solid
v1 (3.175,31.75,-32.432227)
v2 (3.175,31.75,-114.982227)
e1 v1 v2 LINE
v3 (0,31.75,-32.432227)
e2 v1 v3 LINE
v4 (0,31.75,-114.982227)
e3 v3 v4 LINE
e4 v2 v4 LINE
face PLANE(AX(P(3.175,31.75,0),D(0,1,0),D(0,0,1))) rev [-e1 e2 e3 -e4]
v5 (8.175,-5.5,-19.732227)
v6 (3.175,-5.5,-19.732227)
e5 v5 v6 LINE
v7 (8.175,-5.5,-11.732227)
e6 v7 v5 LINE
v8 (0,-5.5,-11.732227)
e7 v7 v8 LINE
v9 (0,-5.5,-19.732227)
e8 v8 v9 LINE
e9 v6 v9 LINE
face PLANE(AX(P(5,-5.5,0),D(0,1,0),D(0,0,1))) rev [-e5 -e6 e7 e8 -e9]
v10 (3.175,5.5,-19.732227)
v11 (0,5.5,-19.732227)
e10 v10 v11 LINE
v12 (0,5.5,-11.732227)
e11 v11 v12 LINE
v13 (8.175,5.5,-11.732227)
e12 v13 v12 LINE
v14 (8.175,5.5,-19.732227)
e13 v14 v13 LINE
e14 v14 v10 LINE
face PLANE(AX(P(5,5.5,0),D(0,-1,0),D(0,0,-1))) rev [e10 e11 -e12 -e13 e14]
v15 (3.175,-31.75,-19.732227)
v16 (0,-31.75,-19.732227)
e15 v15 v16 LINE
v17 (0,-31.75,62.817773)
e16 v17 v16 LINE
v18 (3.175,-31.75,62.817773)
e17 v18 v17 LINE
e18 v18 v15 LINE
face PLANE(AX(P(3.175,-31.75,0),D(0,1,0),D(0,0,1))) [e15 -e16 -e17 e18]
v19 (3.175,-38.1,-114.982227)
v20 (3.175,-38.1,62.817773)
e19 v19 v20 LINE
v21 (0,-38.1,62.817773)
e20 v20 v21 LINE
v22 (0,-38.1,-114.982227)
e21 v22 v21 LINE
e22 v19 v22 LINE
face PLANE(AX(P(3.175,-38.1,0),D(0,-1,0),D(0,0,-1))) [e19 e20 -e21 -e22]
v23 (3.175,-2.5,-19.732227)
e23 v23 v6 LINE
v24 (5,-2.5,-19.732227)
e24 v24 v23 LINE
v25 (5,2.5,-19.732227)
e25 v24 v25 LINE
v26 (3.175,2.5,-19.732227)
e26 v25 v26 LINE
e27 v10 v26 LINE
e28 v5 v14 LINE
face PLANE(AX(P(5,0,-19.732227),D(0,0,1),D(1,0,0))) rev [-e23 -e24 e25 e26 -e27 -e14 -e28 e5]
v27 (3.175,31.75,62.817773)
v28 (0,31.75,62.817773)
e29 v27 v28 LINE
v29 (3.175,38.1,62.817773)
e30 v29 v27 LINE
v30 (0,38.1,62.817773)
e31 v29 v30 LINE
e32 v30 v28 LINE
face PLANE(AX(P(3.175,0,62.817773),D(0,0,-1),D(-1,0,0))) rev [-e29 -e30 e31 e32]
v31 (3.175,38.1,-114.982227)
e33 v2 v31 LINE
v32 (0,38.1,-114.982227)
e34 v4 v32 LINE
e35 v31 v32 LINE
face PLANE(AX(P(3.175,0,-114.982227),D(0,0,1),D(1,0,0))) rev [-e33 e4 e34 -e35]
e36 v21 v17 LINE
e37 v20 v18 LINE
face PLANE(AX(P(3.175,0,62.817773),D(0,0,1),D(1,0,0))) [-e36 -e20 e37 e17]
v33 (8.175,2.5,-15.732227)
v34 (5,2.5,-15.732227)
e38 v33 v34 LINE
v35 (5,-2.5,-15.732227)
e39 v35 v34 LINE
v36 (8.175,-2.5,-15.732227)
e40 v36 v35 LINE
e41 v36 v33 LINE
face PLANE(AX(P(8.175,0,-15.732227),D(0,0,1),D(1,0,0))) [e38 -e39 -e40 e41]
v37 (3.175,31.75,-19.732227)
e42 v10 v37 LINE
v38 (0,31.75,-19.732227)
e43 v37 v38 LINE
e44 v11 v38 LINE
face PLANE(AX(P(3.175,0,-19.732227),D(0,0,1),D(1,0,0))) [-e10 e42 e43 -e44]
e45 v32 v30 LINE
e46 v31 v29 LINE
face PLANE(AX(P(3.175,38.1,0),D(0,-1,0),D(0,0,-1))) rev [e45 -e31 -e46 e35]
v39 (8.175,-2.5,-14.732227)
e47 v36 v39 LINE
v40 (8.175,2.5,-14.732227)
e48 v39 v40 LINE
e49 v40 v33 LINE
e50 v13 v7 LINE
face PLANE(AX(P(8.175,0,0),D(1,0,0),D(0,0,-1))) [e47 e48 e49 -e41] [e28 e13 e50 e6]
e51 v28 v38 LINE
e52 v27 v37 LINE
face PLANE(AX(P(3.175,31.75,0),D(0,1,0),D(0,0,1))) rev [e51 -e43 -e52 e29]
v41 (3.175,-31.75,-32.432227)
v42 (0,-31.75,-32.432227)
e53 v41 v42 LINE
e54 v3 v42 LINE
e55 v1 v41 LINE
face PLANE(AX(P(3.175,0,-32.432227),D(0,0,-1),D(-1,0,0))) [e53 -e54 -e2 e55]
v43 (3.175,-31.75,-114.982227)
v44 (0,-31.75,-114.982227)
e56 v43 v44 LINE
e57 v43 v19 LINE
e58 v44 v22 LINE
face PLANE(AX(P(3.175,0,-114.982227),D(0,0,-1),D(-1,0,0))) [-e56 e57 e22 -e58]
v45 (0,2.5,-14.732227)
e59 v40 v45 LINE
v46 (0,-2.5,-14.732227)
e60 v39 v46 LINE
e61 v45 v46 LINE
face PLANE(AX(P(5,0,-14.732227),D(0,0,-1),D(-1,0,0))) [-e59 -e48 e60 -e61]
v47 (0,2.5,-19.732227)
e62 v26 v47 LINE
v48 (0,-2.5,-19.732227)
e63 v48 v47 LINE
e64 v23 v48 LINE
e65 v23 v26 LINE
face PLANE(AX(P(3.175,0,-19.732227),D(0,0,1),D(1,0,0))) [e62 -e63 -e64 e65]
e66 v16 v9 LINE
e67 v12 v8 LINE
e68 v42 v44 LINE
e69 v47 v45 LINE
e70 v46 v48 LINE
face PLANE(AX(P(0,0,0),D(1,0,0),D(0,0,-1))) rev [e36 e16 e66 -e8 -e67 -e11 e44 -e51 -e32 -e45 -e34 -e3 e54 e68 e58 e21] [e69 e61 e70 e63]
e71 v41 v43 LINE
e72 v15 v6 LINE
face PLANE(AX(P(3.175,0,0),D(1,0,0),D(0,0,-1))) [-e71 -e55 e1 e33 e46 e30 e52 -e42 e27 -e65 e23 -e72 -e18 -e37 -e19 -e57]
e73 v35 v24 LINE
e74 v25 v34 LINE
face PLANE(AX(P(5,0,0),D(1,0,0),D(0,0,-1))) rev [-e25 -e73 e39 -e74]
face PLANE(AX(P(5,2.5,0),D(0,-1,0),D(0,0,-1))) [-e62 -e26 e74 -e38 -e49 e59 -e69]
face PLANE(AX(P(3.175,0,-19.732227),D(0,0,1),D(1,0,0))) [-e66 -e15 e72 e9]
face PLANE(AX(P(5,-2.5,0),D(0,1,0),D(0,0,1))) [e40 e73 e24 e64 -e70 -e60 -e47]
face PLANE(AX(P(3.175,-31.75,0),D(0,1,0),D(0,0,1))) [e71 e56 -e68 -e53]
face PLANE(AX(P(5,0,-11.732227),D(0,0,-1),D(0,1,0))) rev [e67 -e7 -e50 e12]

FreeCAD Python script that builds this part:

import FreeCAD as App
import Part
import Sketcher

V = App.Vector
Q = App.Units.Quantity


def add_polygon(sketch, points):
    """Adds a closed chain of lines whose ends are joined by coincident constraints."""
    first, n = sketch.GeometryCount, len(points)
    for a, b in zip(points, points[1:] + points[:1]):
        sketch.addGeometry(Part.LineSegment(App.Vector(*a, 0), App.Vector(*b, 0)), False)
    for i in range(n):
        sketch.addConstraint(Sketcher.Constraint("Coincident", first + i, 2, first + (i + 1) % n, 1))

doc = App.newDocument("Part")
body = doc.addObject("PartDesign::Body", "Body")

sketch1 = body.newObject("Sketcher::SketchObject", "Sketch")
sketch1.AttachmentSupport = (doc.getObject("YZ_Plane"), [""])
sketch1.MapMode = "FlatFace"
add_polygon(sketch1, [(32, -20), (-32, -20), (-32, 63), (-38, 63), (-38, -115), (-32, -115), (-32, -32), (32, -32), (32, -115), (38, -115), (38, 63), (32, 63)])
sketch1.addConstraint([
    Sketcher.Constraint("Horizontal", 0),
    Sketcher.Constraint("Vertical", 1),
    Sketcher.Constraint("Horizontal", 2),
    Sketcher.Constraint("Vertical", 3),
    Sketcher.Constraint("Horizontal", 4),
    Sketcher.Constraint("Vertical", 5),
    Sketcher.Constraint("Horizontal", 6),
    Sketcher.Constraint("Vertical", 7),
    Sketcher.Constraint("Horizontal", 8),
    Sketcher.Constraint("Vertical", 9),
    Sketcher.Constraint("Horizontal", 10),
    Sketcher.Constraint("Vertical", 11),
    Sketcher.Constraint("Symmetric", 4, 2, 7, 2, -2),
    Sketcher.Constraint("Symmetric", 2, 2, 9, 2, -2),
    Sketcher.Constraint("Vertical", 1, 2, 4, 2),
    Sketcher.Constraint("Vertical", 7, 2, 10, 2),
    Sketcher.Constraint("Equal", 1, 5),
    Sketcher.Constraint("DistanceX", 0, 2, 0, 1, Q("63.5 mm")),
    Sketcher.Constraint("DistanceY", 3, 2, 3, 1, Q("177.8 mm")),
    Sketcher.Constraint("DistanceX", 2, 2, 2, 1, Q("6.35 mm")),
    Sketcher.Constraint("DistanceY", 1, 1, 1, 2, Q("82.55 mm")),
    Sketcher.Constraint("DistanceY", 0, 2, -1, 1, Q("19.732227 mm")),
])
pad1 = body.newObject("PartDesign::Pad", "Pad")
pad1.Profile = sketch1
pad1.Length = 3.175

sketch2 = body.newObject("Sketcher::SketchObject", "Sketch001")
sketch2.AttachmentSupport = (doc.getObject("YZ_Plane"), [""])
sketch2.MapMode = "FlatFace"
add_polygon(sketch2, [(5.5, -19.7), (2.5, -19.7), (2.5, -14.7), (-2.5, -14.7), (-2.5, -19.7), (-5.5, -19.7), (-5.5, -11.7), (5.5, -11.7)])
sketch2.addConstraint([
    Sketcher.Constraint("Horizontal", 0),
    Sketcher.Constraint("Vertical", 1),
    Sketcher.Constraint("Horizontal", 2),
    Sketcher.Constraint("Vertical", 3),
    Sketcher.Constraint("Horizontal", 4),
    Sketcher.Constraint("Vertical", 5),
    Sketcher.Constraint("Horizontal", 6),
    Sketcher.Constraint("Vertical", 7),
    Sketcher.Constraint("Symmetric", 0, 2, 3, 2, -2),
    Sketcher.Constraint("Equal", 0, 4),
    Sketcher.Constraint("Equal", 2, 1),
    Sketcher.Constraint("DistanceX", 0, 2, 0, 1, Q("3 mm")),
    Sketcher.Constraint("DistanceX", 2, 2, 2, 1, Q("5 mm")),
    Sketcher.Constraint("DistanceY", 5, 1, 5, 2, Q("8 mm")),
    Sketcher.Constraint("DistanceY", 0, 2, -1, 1, Q("19.732227 mm")),
])
pad2 = body.newObject("PartDesign::Pad", "Pad001")
pad2.Profile = sketch2
pad2.Length = 5

sketch3 = body.newObject("Sketcher::SketchObject", "Sketch002")
sketch3.AttachmentSupport = (doc.getObject("YZ_Plane"), [""])
sketch3.MapMode = "FlatFace"
sketch3.AttachmentOffset = App.Placement(V(0, 0, 5), App.Rotation())
add_polygon(sketch3, [(5.5, -11.7), (-5.5, -11.7), (-5.5, -19.7), (5.5, -19.7)])
add_polygon(sketch3, [(-2.5, -15.7), (-2.5, -14.7), (2.5, -14.7), (2.5, -15.7)])
sketch3.addConstraint([
    Sketcher.Constraint("Horizontal", 0),
    Sketcher.Constraint("Vertical", 1),
    Sketcher.Constraint("Horizontal", 2),
    Sketcher.Constraint("Vertical", 3),
    Sketcher.Constraint("Vertical", 4),
    Sketcher.Constraint("Horizontal", 5),
    Sketcher.Constraint("Vertical", 6),
    Sketcher.Constraint("Horizontal", 7),
    Sketcher.Constraint("DistanceX", 0, 2, 0, 1, Q("11 mm")),
    Sketcher.Constraint("DistanceX", 5, 1, 5, 2, Q("5 mm")),
    Sketcher.Constraint("DistanceY", 1, 2, 1, 1, Q("8 mm")),
    Sketcher.Constraint("DistanceY", 4, 1, 4, 2, Q("1 mm")),
    Sketcher.Constraint("DistanceX", 0, 2, 4, 2, Q("3 mm")),
    Sketcher.Constraint("DistanceY", 4, 2, 0, 2, Q("3 mm")),
    Sketcher.Constraint("DistanceX", 0, 2, -1, 1, Q("5.5 mm")),
    Sketcher.Constraint("DistanceY", 0, 2, -1, 1, Q("11.732227 mm")),
])
pad3 = body.newObject("PartDesign::Pad", "Pad002")
pad3.Profile = sketch3
pad3.Length = 3.175

doc.recompute()
